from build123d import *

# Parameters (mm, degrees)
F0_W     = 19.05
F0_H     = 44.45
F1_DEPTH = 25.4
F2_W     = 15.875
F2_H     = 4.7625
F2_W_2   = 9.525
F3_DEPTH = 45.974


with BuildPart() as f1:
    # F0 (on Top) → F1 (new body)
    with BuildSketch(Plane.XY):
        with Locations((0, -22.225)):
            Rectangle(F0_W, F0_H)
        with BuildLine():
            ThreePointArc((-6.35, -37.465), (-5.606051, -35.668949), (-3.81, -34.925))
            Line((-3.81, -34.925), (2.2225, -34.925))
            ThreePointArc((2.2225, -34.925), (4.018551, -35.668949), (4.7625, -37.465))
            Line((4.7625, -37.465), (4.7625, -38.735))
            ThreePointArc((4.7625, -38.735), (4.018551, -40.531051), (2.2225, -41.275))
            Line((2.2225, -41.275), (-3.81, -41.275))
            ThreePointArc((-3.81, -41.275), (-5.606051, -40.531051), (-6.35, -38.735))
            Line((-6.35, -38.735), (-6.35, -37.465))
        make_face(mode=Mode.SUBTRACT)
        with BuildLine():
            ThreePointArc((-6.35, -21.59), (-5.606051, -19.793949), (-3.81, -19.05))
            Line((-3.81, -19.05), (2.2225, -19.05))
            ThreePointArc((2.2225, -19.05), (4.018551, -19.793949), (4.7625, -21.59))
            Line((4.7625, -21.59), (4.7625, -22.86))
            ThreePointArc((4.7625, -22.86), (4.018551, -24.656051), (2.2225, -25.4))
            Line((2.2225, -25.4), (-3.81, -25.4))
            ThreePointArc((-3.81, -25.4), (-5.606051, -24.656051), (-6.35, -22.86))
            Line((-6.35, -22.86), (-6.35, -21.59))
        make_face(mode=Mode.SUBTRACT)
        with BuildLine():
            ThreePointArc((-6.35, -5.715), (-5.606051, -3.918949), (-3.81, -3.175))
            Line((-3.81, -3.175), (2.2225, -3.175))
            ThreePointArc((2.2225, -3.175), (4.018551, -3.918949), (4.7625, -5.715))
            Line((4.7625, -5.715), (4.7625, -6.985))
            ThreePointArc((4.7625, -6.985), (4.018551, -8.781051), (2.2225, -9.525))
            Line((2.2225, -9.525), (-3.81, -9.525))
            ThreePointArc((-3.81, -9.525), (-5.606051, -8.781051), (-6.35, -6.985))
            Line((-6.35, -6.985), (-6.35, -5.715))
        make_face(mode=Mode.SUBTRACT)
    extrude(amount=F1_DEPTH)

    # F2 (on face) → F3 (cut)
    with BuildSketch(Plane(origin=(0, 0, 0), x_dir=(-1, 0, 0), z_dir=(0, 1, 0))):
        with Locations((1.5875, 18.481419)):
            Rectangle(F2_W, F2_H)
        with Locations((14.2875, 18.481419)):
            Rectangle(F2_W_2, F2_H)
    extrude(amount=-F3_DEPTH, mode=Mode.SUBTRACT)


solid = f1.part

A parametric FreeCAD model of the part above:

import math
import FreeCAD as App
import Part
import Sketcher

V = App.Vector
Q = App.Units.Quantity

doc = App.newDocument("Part")
params = doc.addObject("Spreadsheet::Sheet", "Params")
for row, (alias, value) in enumerate([
    ("sketch1_radius", "0.1 in"),
    ("sketch1_width", "0.75 in"),
    ("sketch1_height", "1.75 in"),
    ("sketch1_height2", "0.05 in"),
    ("pad1_length", "1 in"),
    ("sketch2_width", "1 in"),
    ("sketch2_height", "0.1875 in"),
    ("pocket1_length", "1.81 in"),
], start=1):
    params.set(f"A{row}", alias)
    params.set(f"B{row}", "=" + value)
    params.setAlias(f"B{row}", alias)

body = doc.addObject("PartDesign::Body", "Body")

# Sketch on XY plane
sketch1 = body.newObject("Sketcher::SketchObject", "Sketch")
sketch1.AttachmentSupport = (doc.getObject("XY_Plane"), [""])
sketch1.MapMode = "FlatFace"
sketch1.addGeometry([
    Part.LineSegment(V(-9.525, 0, 0), V(-9.525, -44.45, 0)),  # 0
    Part.LineSegment(V(-9.525, -44.45, 0), V(9.525, -44.45, 0)),  # 1
    Part.LineSegment(V(9.525, -44.45, 0), V(9.525, 0, 0)),  # 2
    Part.LineSegment(V(9.525, 0, 0), V(-9.525, 0, 0)),  # 3
    Part.LineSegment(V(-6.35, -38.735, 0), V(-6.35, -37.465, 0)),  # 4
    Part.ArcOfCircle(Part.Circle(V(-3.809999, -37.465001, 0), V(0, 0, 1), 2.540001), math.radians(90.000017), math.radians(179.999983)),  # 5
    Part.LineSegment(V(-3.81, -34.925, 0), V(2.2225, -34.925, 0)),  # 6
    Part.ArcOfCircle(Part.Circle(V(2.222499, -37.465001, 0), V(0, 0, 1), 2.540001), math.radians(0.000017), math.radians(89.999983)),  # 7
    Part.LineSegment(V(4.7625, -37.465, 0), V(4.7625, -38.735, 0)),  # 8
    Part.ArcOfCircle(Part.Circle(V(2.222499, -38.734999, 0), V(0, 0, 1), 2.540001), math.radians(-89.999983), math.radians(-0.000017)),  # 9
    Part.LineSegment(V(2.2225, -41.275, 0), V(-3.81, -41.275, 0)),  # 10
    Part.ArcOfCircle(Part.Circle(V(-3.809999, -38.734999, 0), V(0, 0, 1), 2.540001), math.radians(-179.999983), math.radians(-90.000017)),  # 11
    Part.LineSegment(V(-6.35, -22.86, 0), V(-6.35, -21.59, 0)),  # 12
    Part.ArcOfCircle(Part.Circle(V(-3.809999, -21.590001, 0), V(0, 0, 1), 2.540001), math.radians(90.000017), math.radians(179.999983)),  # 13
    Part.LineSegment(V(-3.81, -19.05, 0), V(2.2225, -19.05, 0)),  # 14
    Part.ArcOfCircle(Part.Circle(V(2.222499, -21.590001, 0), V(0, 0, 1), 2.540001), math.radians(0.000017), math.radians(89.999983)),  # 15
    Part.LineSegment(V(4.7625, -21.59, 0), V(4.7625, -22.86, 0)),  # 16
    Part.ArcOfCircle(Part.Circle(V(2.222499, -22.859999, 0), V(0, 0, 1), 2.540001), math.radians(-89.999983), math.radians(-0.000017)),  # 17
    Part.LineSegment(V(2.2225, -25.4, 0), V(-3.81, -25.4, 0)),  # 18
    Part.ArcOfCircle(Part.Circle(V(-3.809999, -22.859999, 0), V(0, 0, 1), 2.540001), math.radians(-179.999983), math.radians(-90.000017)),  # 19
    Part.LineSegment(V(-6.35, -6.985, 0), V(-6.35, -5.715, 0)),  # 20
    Part.ArcOfCircle(Part.Circle(V(-3.809999, -5.715001, 0), V(0, 0, 1), 2.540001), math.radians(90.000017), math.radians(179.999983)),  # 21
    Part.LineSegment(V(-3.81, -3.175, 0), V(2.2225, -3.175, 0)),  # 22
    Part.ArcOfCircle(Part.Circle(V(2.222499, -5.715001, 0), V(0, 0, 1), 2.540001), math.radians(0.000017), math.radians(89.999983)),  # 23
    Part.LineSegment(V(4.7625, -5.715, 0), V(4.7625, -6.985, 0)),  # 24
    Part.ArcOfCircle(Part.Circle(V(2.222499, -6.984999, 0), V(0, 0, 1), 2.540001), math.radians(-89.999983), math.radians(-0.000017)),  # 25
    Part.LineSegment(V(2.2225, -9.525, 0), V(-3.81, -9.525, 0)),  # 26
    Part.ArcOfCircle(Part.Circle(V(-3.809999, -6.984999, 0), V(0, 0, 1), 2.540001), math.radians(-179.999983), math.radians(-90.000017)),  # 27
], False)
sketch1.addConstraint([
    Sketcher.Constraint("Coincident", 0, 2, 1, 1),
    Sketcher.Constraint("Coincident", 1, 2, 2, 1),
    Sketcher.Constraint("Coincident", 2, 2, 3, 1),
    Sketcher.Constraint("Coincident", 3, 2, 0, 1),
    Sketcher.Constraint("Tangent", 4, 2, 5, 2),
    Sketcher.Constraint("Tangent", 5, 1, 6, 1),
    Sketcher.Constraint("Tangent", 6, 2, 7, 2),
    Sketcher.Constraint("Tangent", 7, 1, 8, 1),
    Sketcher.Constraint("Tangent", 8, 2, 9, 2),
    Sketcher.Constraint("Tangent", 9, 1, 10, 1),
    Sketcher.Constraint("Tangent", 10, 2, 11, 2),
    Sketcher.Constraint("Tangent", 11, 1, 4, 1),
    Sketcher.Constraint("Tangent", 12, 2, 13, 2),
    Sketcher.Constraint("Tangent", 13, 1, 14, 1),
    Sketcher.Constraint("Tangent", 14, 2, 15, 2),
    Sketcher.Constraint("Tangent", 15, 1, 16, 1),
    Sketcher.Constraint("Tangent", 16, 2, 17, 2),
    Sketcher.Constraint("Tangent", 17, 1, 18, 1),
    Sketcher.Constraint("Tangent", 18, 2, 19, 2),
    Sketcher.Constraint("Tangent", 19, 1, 12, 1),
    Sketcher.Constraint("Tangent", 20, 2, 21, 2),
    Sketcher.Constraint("Tangent", 21, 1, 22, 1),
    Sketcher.Constraint("Tangent", 22, 2, 23, 2),
    Sketcher.Constraint("Tangent", 23, 1, 24, 1),
    Sketcher.Constraint("Tangent", 24, 2, 25, 2),
    Sketcher.Constraint("Tangent", 25, 1, 26, 1),
    Sketcher.Constraint("Tangent", 26, 2, 27, 2),
    Sketcher.Constraint("Tangent", 27, 1, 20, 1),
    Sketcher.Constraint("Vertical", 0),
    Sketcher.Constraint("Horizontal", 1),
    Sketcher.Constraint("Vertical", 2),
    Sketcher.Constraint("Horizontal", 3),
    Sketcher.Constraint("Vertical", 4),
    Sketcher.Constraint("Horizontal", 6),
    Sketcher.Constraint("Vertical", 8),
    Sketcher.Constraint("Horizontal", 10),
    Sketcher.Constraint("Vertical", 12),
    Sketcher.Constraint("Horizontal", 14),
    Sketcher.Constraint("Vertical", 16),
    Sketcher.Constraint("Horizontal", 18),
    Sketcher.Constraint("Vertical", 20),
    Sketcher.Constraint("Horizontal", 22),
    Sketcher.Constraint("Vertical", 24),
    Sketcher.Constraint("Horizontal", 26),
    Sketcher.Constraint("Equal", 5, 7),
    Sketcher.Constraint("Equal", 7, 9),
    Sketcher.Constraint("Equal", 9, 11),
    Sketcher.Constraint("Equal", 11, 13),
    Sketcher.Constraint("Equal", 13, 15),
    Sketcher.Constraint("Equal", 15, 17),
    Sketcher.Constraint("Equal", 17, 19),
    Sketcher.Constraint("Equal", 19, 21),
    Sketcher.Constraint("Equal", 21, 23),
    Sketcher.Constraint("Equal", 23, 25),
    Sketcher.Constraint("Equal", 25, 27),
    Sketcher.Constraint("Symmetric", 2, 2, 3, 2, -1, 1),
    Sketcher.Constraint("Vertical", 11, 3, 13, 3),
    Sketcher.Constraint("Vertical", 9, 3, 15, 3),
    Sketcher.Constraint("Vertical", 19, 3, 21, 3),
    Sketcher.Constraint("Vertical", 17, 3, 23, 3),
    Sketcher.Constraint("Equal", 8, 12),
    Sketcher.Constraint("Equal", 16, 20),
    Sketcher.Constraint("Radius", 5, Q("0.1 in")),
    Sketcher.Constraint("DistanceY", 17, 1, -1, 1, Q("1 in")),
    Sketcher.Constraint("DistanceX", 1, 1, 1, 2, Q("0.75 in")),
    Sketcher.Constraint("DistanceY", 0, 2, 0, 1, Q("1.75 in")),
    Sketcher.Constraint("DistanceY", 4, 1, 4, 2, Q("0.05 in")),
    Sketcher.Constraint("DistanceX", 5, 3, -1, 1, Q("0.15 in")),
    Sketcher.Constraint("DistanceY", 5, 3, 21, 3, Q("1.25 in")),
    Sketcher.Constraint("DistanceX", 6, 1, 6, 2, Q("0.2375 in")),
    Sketcher.Constraint("DistanceY", 5, 3, -1, 1, Q("1.475 in")),
])
sketch1.setExpression("Constraints[62]", "Params.sketch1_radius")
sketch1.setExpression("Constraints[64]", "Params.sketch1_width")
sketch1.setExpression("Constraints[65]", "Params.sketch1_height")
sketch1.setExpression("Constraints[66]", "Params.sketch1_height2")
pad1 = body.newObject("PartDesign::Pad", "Pad")
pad1.Profile = sketch1
pad1.setExpression("Length", "Params.pad1_length")

# Sketch on XZ plane
sketch2 = body.newObject("Sketcher::SketchObject", "Sketch001")
sketch2.AttachmentSupport = (doc.getObject("XZ_Plane"), [""])
sketch2.MapMode = "FlatFace"
sketch2.addGeometry([
    Part.LineSegment(V(6.35, 20.862669, 0), V(6.35, 16.100169, 0)),
    Part.LineSegment(V(6.35, 16.100169, 0), V(-19.05, 16.100169, 0)),
    Part.LineSegment(V(-19.05, 16.100169, 0), V(-19.05, 20.862669, 0)),
    Part.LineSegment(V(-19.05, 20.862669, 0), V(6.35, 20.862669, 0)),
], False)
sketch2.addConstraint([
    Sketcher.Constraint("Coincident", 0, 2, 1, 1),
    Sketcher.Constraint("Coincident", 1, 2, 2, 1),
    Sketcher.Constraint("Coincident", 2, 2, 3, 1),
    Sketcher.Constraint("Coincident", 3, 2, 0, 1),
    Sketcher.Constraint("Vertical", 0),
    Sketcher.Constraint("Horizontal", 1),
    Sketcher.Constraint("Vertical", 2),
    Sketcher.Constraint("Horizontal", 3),
    Sketcher.Constraint("DistanceX", 1, 2, 1, 1, Q("1 in")),
    Sketcher.Constraint("DistanceY", 0, 2, 0, 1, Q("0.1875 in")),
    Sketcher.Constraint("DistanceX", -1, 1, 0, 2, Q("0.25 in")),
    Sketcher.Constraint("DistanceY", -1, 1, 0, 2, 16.100169),
])
sketch2.setExpression("Constraints[8]", "Params.sketch2_width")
sketch2.setExpression("Constraints[9]", "Params.sketch2_height")
pocket1 = body.newObject("PartDesign::Pocket", "Pocket")
pocket1.Profile = sketch2
pocket1.setExpression("Length", "Params.pocket1_length")
pocket1.Reversed = True

doc.recompute()
